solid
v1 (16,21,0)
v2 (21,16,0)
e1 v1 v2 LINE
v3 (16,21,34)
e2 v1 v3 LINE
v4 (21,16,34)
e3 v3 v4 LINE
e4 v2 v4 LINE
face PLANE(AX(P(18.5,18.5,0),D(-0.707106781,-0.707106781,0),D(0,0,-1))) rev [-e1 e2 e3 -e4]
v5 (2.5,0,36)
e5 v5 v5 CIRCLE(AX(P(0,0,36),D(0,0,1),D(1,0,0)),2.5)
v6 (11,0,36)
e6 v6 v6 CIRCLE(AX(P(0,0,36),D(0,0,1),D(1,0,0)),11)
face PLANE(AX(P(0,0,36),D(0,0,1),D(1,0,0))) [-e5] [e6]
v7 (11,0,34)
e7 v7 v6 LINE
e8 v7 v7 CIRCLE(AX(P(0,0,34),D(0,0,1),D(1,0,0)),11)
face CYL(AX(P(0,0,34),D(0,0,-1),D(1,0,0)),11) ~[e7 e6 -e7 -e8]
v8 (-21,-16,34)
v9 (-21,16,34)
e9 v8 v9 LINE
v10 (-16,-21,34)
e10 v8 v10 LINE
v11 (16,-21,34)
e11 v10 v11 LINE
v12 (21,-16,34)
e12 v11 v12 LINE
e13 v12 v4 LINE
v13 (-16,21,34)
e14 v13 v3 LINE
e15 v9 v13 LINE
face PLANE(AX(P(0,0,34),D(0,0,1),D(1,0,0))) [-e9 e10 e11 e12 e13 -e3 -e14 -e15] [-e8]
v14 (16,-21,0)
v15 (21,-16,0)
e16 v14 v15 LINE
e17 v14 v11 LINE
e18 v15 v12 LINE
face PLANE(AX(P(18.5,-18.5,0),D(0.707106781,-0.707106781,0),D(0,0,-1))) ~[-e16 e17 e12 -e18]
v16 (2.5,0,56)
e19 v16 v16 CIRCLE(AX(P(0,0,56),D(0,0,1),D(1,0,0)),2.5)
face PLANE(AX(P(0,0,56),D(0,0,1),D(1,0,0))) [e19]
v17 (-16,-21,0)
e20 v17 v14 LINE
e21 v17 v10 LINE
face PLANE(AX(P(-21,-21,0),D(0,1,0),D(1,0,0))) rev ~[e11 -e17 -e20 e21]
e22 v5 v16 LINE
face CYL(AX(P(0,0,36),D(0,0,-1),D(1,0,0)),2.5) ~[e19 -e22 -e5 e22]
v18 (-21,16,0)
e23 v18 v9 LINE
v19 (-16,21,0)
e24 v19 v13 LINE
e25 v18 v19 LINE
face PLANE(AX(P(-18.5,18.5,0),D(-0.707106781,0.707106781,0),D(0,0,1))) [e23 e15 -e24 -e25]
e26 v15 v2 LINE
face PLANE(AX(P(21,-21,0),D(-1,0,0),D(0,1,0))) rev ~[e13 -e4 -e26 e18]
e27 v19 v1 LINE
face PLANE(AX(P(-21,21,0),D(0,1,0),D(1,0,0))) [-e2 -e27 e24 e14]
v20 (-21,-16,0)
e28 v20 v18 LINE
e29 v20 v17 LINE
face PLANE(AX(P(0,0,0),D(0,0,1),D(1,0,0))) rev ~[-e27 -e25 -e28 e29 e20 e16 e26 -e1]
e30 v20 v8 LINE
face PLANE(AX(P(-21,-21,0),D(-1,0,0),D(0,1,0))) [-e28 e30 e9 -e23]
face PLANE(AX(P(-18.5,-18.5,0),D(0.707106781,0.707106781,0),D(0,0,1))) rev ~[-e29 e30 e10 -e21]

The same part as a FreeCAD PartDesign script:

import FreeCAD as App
import Part
import Sketcher
from FreeCAD import Vector


def edges_at(feature, points):
    """Names of the edges that pass closest to the given points."""
    edges = feature.Shape.Edges
    near = lambda p: min(range(len(edges)), key=lambda i: edges[i].distToShape(Part.Vertex(*p))[0])
    return sorted({f"Edge{near(p) + 1}" for p in points})

doc = App.newDocument("Part")
body = doc.addObject("PartDesign::Body", "Body")

# Sketch on XY plane
sketch1 = doc.addObject("Sketcher::SketchObject", "Sketch")
body.addObject(sketch1)
sketch1.AttachmentSupport = (doc.XY_Plane, [""])
sketch1.MapMode = "FlatFace"
sketch1.addGeometry([
    Part.LineSegment(Vector(-21, 21, 0), Vector(-21, -21, 0)),
    Part.LineSegment(Vector(-21, -21, 0), Vector(21, -21, 0)),
    Part.LineSegment(Vector(21, -21, 0), Vector(21, 21, 0)),
    Part.LineSegment(Vector(21, 21, 0), Vector(-21, 21, 0)),
], False)
sketch1.addConstraint([
    Sketcher.Constraint("Coincident", 0, 2, 1, 1),
    Sketcher.Constraint("Coincident", 1, 2, 2, 1),
    Sketcher.Constraint("Coincident", 2, 2, 3, 1),
    Sketcher.Constraint("Coincident", 3, 2, 0, 1),
    Sketcher.Constraint("Vertical", 0),
    Sketcher.Constraint("Horizontal", 1),
    Sketcher.Constraint("Vertical", 2),
    Sketcher.Constraint("Horizontal", 3),
    Sketcher.Constraint("Symmetric", 0, 2, 2, 2, -1, 1),
    Sketcher.Constraint("Equal", 3, 0),
    Sketcher.Constraint("DistanceX", 1, 1, 1, 2, 42.0),
])
pad1 = doc.addObject("PartDesign::Pad", "Pad")
body.addObject(pad1)
pad1.Profile = sketch1
pad1.Length = 34

# Sketch on XY plane
sketch2 = doc.addObject("Sketcher::SketchObject", "Sketch001")
body.addObject(sketch2)
sketch2.AttachmentSupport = (doc.XY_Plane, [""])
sketch2.MapMode = "FlatFace"
sketch2.AttachmentOffset = App.Placement(Vector(0, 0, 34), App.Rotation())
sketch2.addGeometry(Part.Circle(Vector(0, 0, 0), Vector(0, 0, 1), 11), False)
sketch2.addConstraint([
    Sketcher.Constraint("Coincident", 0, 3, -1, 1),
    Sketcher.Constraint("Diameter", 0, 22.0),
])
pad2 = doc.addObject("PartDesign::Pad", "Pad001")
body.addObject(pad2)
pad2.Profile = sketch2
pad2.Length = 2

# Sketch on XY plane
sketch3 = doc.addObject("Sketcher::SketchObject", "Sketch002")
body.addObject(sketch3)
sketch3.AttachmentSupport = (doc.XY_Plane, [""])
sketch3.MapMode = "FlatFace"
sketch3.AttachmentOffset = App.Placement(Vector(0, 0, 36), App.Rotation())
sketch3.addGeometry(Part.Circle(Vector(0, 0, 0), Vector(0, 0, 1), 2.5), False)
sketch3.addConstraint([
    Sketcher.Constraint("Coincident", 0, 3, -1, 1),
    Sketcher.Constraint("Diameter", 0, 5.0),
])
pad3 = doc.addObject("PartDesign::Pad", "Pad002")
body.addObject(pad3)
pad3.Profile = sketch3
pad3.Length = 20
doc.recompute()

chamfer = doc.addObject("PartDesign::Chamfer", "Chamfer")
body.addObject(chamfer)
chamfer.Base = (pad3, edges_at(pad3, [
    (-21, 21, 17),
    (21, 21, 17),
    (21, -21, 17),
    (-21, -21, 17),
]))
chamfer.Size = 5

doc.recompute()
